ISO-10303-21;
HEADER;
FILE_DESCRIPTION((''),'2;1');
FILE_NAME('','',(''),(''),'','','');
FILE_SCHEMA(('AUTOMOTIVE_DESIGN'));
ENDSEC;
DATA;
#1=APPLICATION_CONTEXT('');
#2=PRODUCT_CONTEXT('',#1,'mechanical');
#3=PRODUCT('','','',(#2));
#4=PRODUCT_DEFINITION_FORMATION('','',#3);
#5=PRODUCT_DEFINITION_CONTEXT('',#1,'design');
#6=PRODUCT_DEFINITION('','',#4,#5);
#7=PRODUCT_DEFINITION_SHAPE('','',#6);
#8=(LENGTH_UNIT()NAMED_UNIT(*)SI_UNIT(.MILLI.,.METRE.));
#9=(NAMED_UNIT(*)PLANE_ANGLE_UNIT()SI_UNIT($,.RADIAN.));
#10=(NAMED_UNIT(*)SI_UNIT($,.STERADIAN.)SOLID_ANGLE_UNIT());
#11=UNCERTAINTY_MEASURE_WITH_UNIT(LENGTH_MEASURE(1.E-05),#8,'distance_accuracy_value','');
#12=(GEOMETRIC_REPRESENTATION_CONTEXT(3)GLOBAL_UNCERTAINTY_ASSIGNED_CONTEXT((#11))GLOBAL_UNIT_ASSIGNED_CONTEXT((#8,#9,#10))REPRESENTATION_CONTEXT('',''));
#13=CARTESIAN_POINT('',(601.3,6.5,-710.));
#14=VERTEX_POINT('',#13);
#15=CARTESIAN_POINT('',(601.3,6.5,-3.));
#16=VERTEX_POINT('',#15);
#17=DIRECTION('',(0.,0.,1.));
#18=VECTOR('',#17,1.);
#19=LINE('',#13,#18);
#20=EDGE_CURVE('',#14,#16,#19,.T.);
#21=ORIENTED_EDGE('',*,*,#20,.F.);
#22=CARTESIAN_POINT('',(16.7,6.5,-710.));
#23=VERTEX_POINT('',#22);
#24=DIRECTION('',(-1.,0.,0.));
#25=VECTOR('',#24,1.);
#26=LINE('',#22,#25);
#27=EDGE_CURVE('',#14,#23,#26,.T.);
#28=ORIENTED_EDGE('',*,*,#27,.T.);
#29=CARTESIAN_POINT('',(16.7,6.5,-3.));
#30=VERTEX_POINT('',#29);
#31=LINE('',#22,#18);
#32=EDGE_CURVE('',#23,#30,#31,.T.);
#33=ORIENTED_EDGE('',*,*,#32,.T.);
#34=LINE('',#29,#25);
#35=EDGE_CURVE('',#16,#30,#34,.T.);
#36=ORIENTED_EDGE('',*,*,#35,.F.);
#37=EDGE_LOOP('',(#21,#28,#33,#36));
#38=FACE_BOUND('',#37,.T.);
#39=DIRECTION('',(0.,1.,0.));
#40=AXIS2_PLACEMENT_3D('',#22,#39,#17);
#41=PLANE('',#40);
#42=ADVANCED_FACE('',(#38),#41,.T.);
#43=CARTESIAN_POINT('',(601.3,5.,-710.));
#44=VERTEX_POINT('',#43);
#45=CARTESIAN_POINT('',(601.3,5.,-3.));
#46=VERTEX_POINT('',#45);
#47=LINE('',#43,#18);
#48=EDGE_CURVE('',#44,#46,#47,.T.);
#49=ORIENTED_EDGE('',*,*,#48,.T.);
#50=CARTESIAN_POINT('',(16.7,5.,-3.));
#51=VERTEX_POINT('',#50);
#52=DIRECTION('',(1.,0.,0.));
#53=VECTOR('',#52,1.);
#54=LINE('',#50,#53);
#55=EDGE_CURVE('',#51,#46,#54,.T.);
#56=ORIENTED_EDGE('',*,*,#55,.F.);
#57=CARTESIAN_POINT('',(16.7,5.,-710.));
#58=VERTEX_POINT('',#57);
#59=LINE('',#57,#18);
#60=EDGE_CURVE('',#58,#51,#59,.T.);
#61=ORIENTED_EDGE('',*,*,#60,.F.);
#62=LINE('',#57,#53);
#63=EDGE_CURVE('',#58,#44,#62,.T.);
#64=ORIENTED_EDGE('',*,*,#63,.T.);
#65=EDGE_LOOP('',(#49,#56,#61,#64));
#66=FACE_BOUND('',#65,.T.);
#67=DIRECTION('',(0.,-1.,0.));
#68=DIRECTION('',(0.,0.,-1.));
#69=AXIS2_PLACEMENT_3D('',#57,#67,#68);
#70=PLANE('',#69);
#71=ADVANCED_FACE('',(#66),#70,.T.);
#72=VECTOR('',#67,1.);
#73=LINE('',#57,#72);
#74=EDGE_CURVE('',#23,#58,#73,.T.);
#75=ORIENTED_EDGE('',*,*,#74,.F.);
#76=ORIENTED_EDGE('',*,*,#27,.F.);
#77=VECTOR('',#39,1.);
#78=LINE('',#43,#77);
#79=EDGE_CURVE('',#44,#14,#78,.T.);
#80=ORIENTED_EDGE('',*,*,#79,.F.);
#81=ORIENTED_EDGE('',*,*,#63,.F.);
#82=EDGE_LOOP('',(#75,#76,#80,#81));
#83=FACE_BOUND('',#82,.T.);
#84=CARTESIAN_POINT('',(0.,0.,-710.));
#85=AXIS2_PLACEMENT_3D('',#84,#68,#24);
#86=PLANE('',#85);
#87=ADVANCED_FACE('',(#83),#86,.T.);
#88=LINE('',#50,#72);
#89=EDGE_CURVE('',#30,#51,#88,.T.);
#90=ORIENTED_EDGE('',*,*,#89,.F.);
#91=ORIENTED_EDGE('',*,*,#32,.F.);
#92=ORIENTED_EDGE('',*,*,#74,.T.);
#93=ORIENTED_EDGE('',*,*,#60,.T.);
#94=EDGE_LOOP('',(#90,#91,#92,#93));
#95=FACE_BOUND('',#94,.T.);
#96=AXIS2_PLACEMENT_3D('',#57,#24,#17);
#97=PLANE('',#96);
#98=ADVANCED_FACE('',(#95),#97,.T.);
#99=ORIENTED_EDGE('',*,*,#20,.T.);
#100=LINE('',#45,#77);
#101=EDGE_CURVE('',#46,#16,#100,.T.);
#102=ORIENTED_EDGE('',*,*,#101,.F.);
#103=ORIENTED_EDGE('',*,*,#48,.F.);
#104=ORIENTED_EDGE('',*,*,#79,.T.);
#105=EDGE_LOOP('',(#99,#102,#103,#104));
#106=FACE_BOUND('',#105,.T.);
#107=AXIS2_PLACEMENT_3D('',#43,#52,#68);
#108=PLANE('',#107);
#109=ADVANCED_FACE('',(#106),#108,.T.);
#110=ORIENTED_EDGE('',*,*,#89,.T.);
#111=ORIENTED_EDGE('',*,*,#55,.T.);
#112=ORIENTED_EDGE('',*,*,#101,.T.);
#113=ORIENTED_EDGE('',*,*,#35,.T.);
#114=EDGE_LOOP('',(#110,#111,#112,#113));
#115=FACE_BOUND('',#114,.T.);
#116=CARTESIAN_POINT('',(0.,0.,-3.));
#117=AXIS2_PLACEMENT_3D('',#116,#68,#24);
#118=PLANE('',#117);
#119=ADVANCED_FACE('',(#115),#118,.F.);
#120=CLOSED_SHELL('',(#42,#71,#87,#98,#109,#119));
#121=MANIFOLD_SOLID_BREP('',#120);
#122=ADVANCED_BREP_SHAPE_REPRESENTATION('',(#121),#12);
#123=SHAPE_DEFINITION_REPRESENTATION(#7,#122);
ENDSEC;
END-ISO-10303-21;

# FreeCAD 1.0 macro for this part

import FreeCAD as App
import Part
import Sketcher
Q = App.Units.Quantity


def add_polygon(sketch, points):
    """Adds a closed chain of lines whose ends are joined by coincident constraints."""
    first, n = sketch.GeometryCount, len(points)
    for a, b in zip(points, points[1:] + points[:1]):
        sketch.addGeometry(Part.LineSegment(App.Vector(*a, 0), App.Vector(*b, 0)), False)
    for i in range(n):
        sketch.addConstraint(Sketcher.Constraint("Coincident", first + i, 2, first + (i + 1) % n, 1))

doc = App.newDocument("Part")
body = doc.addObject("PartDesign::Body", "Body")

# Sketch on XY plane
sketch1 = doc.addObject("Sketcher::SketchObject", "Sketch")
body.addObject(sketch1)
sketch1.AttachmentSupport = (doc.XY_Plane, [""])
sketch1.MapMode = "FlatFace"
sketch1.AttachmentOffset = App.Placement(App.Vector(0, 0, -3), App.Rotation())
add_polygon(sketch1, [(16.7, 6.5), (16.7, 5), (601.3, 5), (601.3, 6.5)])  # lines 0-3
sketch1.addConstraint(Sketcher.Constraint("Vertical", 0))
sketch1.addConstraint(Sketcher.Constraint("Horizontal", 1))
sketch1.addConstraint(Sketcher.Constraint("Vertical", 2))
sketch1.addConstraint(Sketcher.Constraint("Horizontal", 3))
sketch1.addConstraint(Sketcher.Constraint("DistanceX", 1, 1, 1, 2, Q("584.6 mm")))
sketch1.addConstraint(Sketcher.Constraint("DistanceY", 0, 2, 0, 1, Q("1.5 mm")))
sketch1.addConstraint(Sketcher.Constraint("DistanceY", -1, 1, 0, 2, Q("5 mm")))
sketch1.addConstraint(Sketcher.Constraint("DistanceX", -1, 1, 0, 2, Q("16.7 mm")))
pad1 = doc.addObject("PartDesign::Pad", "Pad")
body.addObject(pad1)
pad1.Profile = sketch1
pad1.Length = 707
pad1.Reversed = True

doc.recompute()
